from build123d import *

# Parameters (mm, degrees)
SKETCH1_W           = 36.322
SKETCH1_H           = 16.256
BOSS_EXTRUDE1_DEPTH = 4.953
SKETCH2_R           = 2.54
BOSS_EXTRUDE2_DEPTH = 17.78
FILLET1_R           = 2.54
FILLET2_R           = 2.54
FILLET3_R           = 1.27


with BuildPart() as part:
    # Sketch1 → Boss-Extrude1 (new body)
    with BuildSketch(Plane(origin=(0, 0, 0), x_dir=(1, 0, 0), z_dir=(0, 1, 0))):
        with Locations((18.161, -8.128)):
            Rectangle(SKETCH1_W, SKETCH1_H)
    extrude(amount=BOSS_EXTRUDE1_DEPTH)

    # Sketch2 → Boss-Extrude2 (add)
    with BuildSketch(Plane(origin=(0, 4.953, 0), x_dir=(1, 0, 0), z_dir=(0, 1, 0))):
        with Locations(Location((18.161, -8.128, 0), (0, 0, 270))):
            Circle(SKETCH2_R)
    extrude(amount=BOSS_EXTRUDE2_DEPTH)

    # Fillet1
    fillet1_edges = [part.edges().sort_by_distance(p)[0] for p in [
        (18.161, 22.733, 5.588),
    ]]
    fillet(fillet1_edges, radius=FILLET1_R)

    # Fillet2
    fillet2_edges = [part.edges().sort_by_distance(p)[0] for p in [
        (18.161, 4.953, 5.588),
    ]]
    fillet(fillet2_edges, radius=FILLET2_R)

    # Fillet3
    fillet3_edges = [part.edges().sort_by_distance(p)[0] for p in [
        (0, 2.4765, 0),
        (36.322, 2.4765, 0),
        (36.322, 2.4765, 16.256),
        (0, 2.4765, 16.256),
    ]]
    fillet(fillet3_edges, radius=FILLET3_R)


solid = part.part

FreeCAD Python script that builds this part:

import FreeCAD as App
import Part
import Sketcher

V = App.Vector
Q = App.Units.Quantity


def edges_at(feature, points):
    """Names of the edges that pass closest to the given points."""
    edges = feature.Shape.Edges
    near = lambda p: min(range(len(edges)), key=lambda i: edges[i].distToShape(Part.Vertex(*p))[0])
    return sorted({f"Edge{near(p) + 1}" for p in points})

doc = App.newDocument("Part")
params = doc.addObject("Spreadsheet::Sheet", "Params")
for row, (alias, value) in enumerate([
    ("sketch1_width", "1.43 in"),
    ("sketch1_height", "0.64 in"),
    ("pad1_length", "0.195 in"),
    ("sketch2_diameter", "0.2 in"),
    ("pad2_length", "0.7 in"),
    ("fillet_radius", "0.1 in"),
    ("fillet2_radius", "0.1 in"),
    ("fillet3_radius", "0.05 in"),
], start=1):
    params.set(f"A{row}", alias)
    params.set(f"B{row}", "=" + value)
    params.setAlias(f"B{row}", alias)

body = doc.addObject("PartDesign::Body", "Body")

# Sketch on XZ plane
sketch1 = body.newObject("Sketcher::SketchObject", "Sketch")
sketch1.AttachmentSupport = (doc.getObject("XZ_Plane"), [""])
sketch1.MapMode = "FlatFace"
sketch1.addGeometry(Part.LineSegment(V(0, 0, 0), V(0, 16, 0)), False)
sketch1.addGeometry(Part.LineSegment(V(0, 16, 0), V(36, 16, 0)), False)
sketch1.addGeometry(Part.LineSegment(V(36, 16, 0), V(36, 0, 0)), False)
sketch1.addGeometry(Part.LineSegment(V(36, 0, 0), V(0, 0, 0)), False)
sketch1.addConstraint(Sketcher.Constraint("Coincident", 0, 2, 1, 1))
sketch1.addConstraint(Sketcher.Constraint("Coincident", 1, 2, 2, 1))
sketch1.addConstraint(Sketcher.Constraint("Coincident", 2, 2, 3, 1))
sketch1.addConstraint(Sketcher.Constraint("Coincident", 3, 2, 0, 1))
sketch1.addConstraint(Sketcher.Constraint("Vertical", 0))
sketch1.addConstraint(Sketcher.Constraint("Horizontal", 1))
sketch1.addConstraint(Sketcher.Constraint("Vertical", 2))
sketch1.addConstraint(Sketcher.Constraint("Horizontal", 3))
sketch1.addConstraint(Sketcher.Constraint("Coincident", 3, 2, -1, 1))
sketch1.addConstraint(Sketcher.Constraint("DistanceX", 1, 1, 1, 2, Q("1.43 in")))
sketch1.addConstraint(Sketcher.Constraint("DistanceY", 0, 1, 0, 2, Q("0.64 in")))
sketch1.setExpression("Constraints[9]", "Params.sketch1_width")
sketch1.setExpression("Constraints[10]", "Params.sketch1_height")
pad1 = body.newObject("PartDesign::Pad", "Pad")
pad1.Profile = sketch1
pad1.setExpression("Length", "Params.pad1_length")
pad1.Reversed = True

# Sketch on XZ plane
sketch2 = body.newObject("Sketcher::SketchObject", "Sketch001")
sketch2.AttachmentSupport = (doc.getObject("XZ_Plane"), [""])
sketch2.MapMode = "FlatFace"
sketch2.AttachmentOffset = App.Placement(V(0, 0, -0.195 * 25.4), App.Rotation())
sketch2.addGeometry(Part.Circle(V(18.2, 8.1, 0), V(0, 0, 1), 2.5), False)
sketch2.addConstraint(Sketcher.Constraint("Diameter", 0, Q("0.2 in")))
sketch2.addConstraint(Sketcher.Constraint("DistanceY", -1, 1, 0, 3, Q("0.32 in")))
sketch2.addConstraint(Sketcher.Constraint("DistanceX", -1, 1, 0, 3, Q("0.715 in")))
sketch2.setExpression("Constraints[0]", "Params.sketch2_diameter")
pad2 = body.newObject("PartDesign::Pad", "Pad001")
pad2.Profile = sketch2
pad2.setExpression("Length", "Params.pad2_length")
pad2.Reversed = True
doc.recompute()

fillet = body.newObject("PartDesign::Fillet", "Fillet")
fillet.Base = (pad2, edges_at(pad2, [(18.161, 22.733, 5.588)]))
fillet.setExpression("Radius", "Params.fillet_radius")
doc.recompute()

fillet2 = body.newObject("PartDesign::Fillet", "Fillet001")
fillet2.Base = (fillet, edges_at(fillet, [(18.161, 4.953, 5.588)]))
fillet2.setExpression("Radius", "Params.fillet2_radius")
doc.recompute()

fillet3 = body.newObject("PartDesign::Fillet", "Fillet002")
fillet3.Base = (fillet2, edges_at(fillet2, [
    (0, 2.477, 0),
    (36.322, 2.477, 0),
    (36.322, 2.477, 16.256),
    (0, 2.477, 16.256),
]))
fillet3.setExpression("Radius", "Params.fillet3_radius")

doc.recompute()
